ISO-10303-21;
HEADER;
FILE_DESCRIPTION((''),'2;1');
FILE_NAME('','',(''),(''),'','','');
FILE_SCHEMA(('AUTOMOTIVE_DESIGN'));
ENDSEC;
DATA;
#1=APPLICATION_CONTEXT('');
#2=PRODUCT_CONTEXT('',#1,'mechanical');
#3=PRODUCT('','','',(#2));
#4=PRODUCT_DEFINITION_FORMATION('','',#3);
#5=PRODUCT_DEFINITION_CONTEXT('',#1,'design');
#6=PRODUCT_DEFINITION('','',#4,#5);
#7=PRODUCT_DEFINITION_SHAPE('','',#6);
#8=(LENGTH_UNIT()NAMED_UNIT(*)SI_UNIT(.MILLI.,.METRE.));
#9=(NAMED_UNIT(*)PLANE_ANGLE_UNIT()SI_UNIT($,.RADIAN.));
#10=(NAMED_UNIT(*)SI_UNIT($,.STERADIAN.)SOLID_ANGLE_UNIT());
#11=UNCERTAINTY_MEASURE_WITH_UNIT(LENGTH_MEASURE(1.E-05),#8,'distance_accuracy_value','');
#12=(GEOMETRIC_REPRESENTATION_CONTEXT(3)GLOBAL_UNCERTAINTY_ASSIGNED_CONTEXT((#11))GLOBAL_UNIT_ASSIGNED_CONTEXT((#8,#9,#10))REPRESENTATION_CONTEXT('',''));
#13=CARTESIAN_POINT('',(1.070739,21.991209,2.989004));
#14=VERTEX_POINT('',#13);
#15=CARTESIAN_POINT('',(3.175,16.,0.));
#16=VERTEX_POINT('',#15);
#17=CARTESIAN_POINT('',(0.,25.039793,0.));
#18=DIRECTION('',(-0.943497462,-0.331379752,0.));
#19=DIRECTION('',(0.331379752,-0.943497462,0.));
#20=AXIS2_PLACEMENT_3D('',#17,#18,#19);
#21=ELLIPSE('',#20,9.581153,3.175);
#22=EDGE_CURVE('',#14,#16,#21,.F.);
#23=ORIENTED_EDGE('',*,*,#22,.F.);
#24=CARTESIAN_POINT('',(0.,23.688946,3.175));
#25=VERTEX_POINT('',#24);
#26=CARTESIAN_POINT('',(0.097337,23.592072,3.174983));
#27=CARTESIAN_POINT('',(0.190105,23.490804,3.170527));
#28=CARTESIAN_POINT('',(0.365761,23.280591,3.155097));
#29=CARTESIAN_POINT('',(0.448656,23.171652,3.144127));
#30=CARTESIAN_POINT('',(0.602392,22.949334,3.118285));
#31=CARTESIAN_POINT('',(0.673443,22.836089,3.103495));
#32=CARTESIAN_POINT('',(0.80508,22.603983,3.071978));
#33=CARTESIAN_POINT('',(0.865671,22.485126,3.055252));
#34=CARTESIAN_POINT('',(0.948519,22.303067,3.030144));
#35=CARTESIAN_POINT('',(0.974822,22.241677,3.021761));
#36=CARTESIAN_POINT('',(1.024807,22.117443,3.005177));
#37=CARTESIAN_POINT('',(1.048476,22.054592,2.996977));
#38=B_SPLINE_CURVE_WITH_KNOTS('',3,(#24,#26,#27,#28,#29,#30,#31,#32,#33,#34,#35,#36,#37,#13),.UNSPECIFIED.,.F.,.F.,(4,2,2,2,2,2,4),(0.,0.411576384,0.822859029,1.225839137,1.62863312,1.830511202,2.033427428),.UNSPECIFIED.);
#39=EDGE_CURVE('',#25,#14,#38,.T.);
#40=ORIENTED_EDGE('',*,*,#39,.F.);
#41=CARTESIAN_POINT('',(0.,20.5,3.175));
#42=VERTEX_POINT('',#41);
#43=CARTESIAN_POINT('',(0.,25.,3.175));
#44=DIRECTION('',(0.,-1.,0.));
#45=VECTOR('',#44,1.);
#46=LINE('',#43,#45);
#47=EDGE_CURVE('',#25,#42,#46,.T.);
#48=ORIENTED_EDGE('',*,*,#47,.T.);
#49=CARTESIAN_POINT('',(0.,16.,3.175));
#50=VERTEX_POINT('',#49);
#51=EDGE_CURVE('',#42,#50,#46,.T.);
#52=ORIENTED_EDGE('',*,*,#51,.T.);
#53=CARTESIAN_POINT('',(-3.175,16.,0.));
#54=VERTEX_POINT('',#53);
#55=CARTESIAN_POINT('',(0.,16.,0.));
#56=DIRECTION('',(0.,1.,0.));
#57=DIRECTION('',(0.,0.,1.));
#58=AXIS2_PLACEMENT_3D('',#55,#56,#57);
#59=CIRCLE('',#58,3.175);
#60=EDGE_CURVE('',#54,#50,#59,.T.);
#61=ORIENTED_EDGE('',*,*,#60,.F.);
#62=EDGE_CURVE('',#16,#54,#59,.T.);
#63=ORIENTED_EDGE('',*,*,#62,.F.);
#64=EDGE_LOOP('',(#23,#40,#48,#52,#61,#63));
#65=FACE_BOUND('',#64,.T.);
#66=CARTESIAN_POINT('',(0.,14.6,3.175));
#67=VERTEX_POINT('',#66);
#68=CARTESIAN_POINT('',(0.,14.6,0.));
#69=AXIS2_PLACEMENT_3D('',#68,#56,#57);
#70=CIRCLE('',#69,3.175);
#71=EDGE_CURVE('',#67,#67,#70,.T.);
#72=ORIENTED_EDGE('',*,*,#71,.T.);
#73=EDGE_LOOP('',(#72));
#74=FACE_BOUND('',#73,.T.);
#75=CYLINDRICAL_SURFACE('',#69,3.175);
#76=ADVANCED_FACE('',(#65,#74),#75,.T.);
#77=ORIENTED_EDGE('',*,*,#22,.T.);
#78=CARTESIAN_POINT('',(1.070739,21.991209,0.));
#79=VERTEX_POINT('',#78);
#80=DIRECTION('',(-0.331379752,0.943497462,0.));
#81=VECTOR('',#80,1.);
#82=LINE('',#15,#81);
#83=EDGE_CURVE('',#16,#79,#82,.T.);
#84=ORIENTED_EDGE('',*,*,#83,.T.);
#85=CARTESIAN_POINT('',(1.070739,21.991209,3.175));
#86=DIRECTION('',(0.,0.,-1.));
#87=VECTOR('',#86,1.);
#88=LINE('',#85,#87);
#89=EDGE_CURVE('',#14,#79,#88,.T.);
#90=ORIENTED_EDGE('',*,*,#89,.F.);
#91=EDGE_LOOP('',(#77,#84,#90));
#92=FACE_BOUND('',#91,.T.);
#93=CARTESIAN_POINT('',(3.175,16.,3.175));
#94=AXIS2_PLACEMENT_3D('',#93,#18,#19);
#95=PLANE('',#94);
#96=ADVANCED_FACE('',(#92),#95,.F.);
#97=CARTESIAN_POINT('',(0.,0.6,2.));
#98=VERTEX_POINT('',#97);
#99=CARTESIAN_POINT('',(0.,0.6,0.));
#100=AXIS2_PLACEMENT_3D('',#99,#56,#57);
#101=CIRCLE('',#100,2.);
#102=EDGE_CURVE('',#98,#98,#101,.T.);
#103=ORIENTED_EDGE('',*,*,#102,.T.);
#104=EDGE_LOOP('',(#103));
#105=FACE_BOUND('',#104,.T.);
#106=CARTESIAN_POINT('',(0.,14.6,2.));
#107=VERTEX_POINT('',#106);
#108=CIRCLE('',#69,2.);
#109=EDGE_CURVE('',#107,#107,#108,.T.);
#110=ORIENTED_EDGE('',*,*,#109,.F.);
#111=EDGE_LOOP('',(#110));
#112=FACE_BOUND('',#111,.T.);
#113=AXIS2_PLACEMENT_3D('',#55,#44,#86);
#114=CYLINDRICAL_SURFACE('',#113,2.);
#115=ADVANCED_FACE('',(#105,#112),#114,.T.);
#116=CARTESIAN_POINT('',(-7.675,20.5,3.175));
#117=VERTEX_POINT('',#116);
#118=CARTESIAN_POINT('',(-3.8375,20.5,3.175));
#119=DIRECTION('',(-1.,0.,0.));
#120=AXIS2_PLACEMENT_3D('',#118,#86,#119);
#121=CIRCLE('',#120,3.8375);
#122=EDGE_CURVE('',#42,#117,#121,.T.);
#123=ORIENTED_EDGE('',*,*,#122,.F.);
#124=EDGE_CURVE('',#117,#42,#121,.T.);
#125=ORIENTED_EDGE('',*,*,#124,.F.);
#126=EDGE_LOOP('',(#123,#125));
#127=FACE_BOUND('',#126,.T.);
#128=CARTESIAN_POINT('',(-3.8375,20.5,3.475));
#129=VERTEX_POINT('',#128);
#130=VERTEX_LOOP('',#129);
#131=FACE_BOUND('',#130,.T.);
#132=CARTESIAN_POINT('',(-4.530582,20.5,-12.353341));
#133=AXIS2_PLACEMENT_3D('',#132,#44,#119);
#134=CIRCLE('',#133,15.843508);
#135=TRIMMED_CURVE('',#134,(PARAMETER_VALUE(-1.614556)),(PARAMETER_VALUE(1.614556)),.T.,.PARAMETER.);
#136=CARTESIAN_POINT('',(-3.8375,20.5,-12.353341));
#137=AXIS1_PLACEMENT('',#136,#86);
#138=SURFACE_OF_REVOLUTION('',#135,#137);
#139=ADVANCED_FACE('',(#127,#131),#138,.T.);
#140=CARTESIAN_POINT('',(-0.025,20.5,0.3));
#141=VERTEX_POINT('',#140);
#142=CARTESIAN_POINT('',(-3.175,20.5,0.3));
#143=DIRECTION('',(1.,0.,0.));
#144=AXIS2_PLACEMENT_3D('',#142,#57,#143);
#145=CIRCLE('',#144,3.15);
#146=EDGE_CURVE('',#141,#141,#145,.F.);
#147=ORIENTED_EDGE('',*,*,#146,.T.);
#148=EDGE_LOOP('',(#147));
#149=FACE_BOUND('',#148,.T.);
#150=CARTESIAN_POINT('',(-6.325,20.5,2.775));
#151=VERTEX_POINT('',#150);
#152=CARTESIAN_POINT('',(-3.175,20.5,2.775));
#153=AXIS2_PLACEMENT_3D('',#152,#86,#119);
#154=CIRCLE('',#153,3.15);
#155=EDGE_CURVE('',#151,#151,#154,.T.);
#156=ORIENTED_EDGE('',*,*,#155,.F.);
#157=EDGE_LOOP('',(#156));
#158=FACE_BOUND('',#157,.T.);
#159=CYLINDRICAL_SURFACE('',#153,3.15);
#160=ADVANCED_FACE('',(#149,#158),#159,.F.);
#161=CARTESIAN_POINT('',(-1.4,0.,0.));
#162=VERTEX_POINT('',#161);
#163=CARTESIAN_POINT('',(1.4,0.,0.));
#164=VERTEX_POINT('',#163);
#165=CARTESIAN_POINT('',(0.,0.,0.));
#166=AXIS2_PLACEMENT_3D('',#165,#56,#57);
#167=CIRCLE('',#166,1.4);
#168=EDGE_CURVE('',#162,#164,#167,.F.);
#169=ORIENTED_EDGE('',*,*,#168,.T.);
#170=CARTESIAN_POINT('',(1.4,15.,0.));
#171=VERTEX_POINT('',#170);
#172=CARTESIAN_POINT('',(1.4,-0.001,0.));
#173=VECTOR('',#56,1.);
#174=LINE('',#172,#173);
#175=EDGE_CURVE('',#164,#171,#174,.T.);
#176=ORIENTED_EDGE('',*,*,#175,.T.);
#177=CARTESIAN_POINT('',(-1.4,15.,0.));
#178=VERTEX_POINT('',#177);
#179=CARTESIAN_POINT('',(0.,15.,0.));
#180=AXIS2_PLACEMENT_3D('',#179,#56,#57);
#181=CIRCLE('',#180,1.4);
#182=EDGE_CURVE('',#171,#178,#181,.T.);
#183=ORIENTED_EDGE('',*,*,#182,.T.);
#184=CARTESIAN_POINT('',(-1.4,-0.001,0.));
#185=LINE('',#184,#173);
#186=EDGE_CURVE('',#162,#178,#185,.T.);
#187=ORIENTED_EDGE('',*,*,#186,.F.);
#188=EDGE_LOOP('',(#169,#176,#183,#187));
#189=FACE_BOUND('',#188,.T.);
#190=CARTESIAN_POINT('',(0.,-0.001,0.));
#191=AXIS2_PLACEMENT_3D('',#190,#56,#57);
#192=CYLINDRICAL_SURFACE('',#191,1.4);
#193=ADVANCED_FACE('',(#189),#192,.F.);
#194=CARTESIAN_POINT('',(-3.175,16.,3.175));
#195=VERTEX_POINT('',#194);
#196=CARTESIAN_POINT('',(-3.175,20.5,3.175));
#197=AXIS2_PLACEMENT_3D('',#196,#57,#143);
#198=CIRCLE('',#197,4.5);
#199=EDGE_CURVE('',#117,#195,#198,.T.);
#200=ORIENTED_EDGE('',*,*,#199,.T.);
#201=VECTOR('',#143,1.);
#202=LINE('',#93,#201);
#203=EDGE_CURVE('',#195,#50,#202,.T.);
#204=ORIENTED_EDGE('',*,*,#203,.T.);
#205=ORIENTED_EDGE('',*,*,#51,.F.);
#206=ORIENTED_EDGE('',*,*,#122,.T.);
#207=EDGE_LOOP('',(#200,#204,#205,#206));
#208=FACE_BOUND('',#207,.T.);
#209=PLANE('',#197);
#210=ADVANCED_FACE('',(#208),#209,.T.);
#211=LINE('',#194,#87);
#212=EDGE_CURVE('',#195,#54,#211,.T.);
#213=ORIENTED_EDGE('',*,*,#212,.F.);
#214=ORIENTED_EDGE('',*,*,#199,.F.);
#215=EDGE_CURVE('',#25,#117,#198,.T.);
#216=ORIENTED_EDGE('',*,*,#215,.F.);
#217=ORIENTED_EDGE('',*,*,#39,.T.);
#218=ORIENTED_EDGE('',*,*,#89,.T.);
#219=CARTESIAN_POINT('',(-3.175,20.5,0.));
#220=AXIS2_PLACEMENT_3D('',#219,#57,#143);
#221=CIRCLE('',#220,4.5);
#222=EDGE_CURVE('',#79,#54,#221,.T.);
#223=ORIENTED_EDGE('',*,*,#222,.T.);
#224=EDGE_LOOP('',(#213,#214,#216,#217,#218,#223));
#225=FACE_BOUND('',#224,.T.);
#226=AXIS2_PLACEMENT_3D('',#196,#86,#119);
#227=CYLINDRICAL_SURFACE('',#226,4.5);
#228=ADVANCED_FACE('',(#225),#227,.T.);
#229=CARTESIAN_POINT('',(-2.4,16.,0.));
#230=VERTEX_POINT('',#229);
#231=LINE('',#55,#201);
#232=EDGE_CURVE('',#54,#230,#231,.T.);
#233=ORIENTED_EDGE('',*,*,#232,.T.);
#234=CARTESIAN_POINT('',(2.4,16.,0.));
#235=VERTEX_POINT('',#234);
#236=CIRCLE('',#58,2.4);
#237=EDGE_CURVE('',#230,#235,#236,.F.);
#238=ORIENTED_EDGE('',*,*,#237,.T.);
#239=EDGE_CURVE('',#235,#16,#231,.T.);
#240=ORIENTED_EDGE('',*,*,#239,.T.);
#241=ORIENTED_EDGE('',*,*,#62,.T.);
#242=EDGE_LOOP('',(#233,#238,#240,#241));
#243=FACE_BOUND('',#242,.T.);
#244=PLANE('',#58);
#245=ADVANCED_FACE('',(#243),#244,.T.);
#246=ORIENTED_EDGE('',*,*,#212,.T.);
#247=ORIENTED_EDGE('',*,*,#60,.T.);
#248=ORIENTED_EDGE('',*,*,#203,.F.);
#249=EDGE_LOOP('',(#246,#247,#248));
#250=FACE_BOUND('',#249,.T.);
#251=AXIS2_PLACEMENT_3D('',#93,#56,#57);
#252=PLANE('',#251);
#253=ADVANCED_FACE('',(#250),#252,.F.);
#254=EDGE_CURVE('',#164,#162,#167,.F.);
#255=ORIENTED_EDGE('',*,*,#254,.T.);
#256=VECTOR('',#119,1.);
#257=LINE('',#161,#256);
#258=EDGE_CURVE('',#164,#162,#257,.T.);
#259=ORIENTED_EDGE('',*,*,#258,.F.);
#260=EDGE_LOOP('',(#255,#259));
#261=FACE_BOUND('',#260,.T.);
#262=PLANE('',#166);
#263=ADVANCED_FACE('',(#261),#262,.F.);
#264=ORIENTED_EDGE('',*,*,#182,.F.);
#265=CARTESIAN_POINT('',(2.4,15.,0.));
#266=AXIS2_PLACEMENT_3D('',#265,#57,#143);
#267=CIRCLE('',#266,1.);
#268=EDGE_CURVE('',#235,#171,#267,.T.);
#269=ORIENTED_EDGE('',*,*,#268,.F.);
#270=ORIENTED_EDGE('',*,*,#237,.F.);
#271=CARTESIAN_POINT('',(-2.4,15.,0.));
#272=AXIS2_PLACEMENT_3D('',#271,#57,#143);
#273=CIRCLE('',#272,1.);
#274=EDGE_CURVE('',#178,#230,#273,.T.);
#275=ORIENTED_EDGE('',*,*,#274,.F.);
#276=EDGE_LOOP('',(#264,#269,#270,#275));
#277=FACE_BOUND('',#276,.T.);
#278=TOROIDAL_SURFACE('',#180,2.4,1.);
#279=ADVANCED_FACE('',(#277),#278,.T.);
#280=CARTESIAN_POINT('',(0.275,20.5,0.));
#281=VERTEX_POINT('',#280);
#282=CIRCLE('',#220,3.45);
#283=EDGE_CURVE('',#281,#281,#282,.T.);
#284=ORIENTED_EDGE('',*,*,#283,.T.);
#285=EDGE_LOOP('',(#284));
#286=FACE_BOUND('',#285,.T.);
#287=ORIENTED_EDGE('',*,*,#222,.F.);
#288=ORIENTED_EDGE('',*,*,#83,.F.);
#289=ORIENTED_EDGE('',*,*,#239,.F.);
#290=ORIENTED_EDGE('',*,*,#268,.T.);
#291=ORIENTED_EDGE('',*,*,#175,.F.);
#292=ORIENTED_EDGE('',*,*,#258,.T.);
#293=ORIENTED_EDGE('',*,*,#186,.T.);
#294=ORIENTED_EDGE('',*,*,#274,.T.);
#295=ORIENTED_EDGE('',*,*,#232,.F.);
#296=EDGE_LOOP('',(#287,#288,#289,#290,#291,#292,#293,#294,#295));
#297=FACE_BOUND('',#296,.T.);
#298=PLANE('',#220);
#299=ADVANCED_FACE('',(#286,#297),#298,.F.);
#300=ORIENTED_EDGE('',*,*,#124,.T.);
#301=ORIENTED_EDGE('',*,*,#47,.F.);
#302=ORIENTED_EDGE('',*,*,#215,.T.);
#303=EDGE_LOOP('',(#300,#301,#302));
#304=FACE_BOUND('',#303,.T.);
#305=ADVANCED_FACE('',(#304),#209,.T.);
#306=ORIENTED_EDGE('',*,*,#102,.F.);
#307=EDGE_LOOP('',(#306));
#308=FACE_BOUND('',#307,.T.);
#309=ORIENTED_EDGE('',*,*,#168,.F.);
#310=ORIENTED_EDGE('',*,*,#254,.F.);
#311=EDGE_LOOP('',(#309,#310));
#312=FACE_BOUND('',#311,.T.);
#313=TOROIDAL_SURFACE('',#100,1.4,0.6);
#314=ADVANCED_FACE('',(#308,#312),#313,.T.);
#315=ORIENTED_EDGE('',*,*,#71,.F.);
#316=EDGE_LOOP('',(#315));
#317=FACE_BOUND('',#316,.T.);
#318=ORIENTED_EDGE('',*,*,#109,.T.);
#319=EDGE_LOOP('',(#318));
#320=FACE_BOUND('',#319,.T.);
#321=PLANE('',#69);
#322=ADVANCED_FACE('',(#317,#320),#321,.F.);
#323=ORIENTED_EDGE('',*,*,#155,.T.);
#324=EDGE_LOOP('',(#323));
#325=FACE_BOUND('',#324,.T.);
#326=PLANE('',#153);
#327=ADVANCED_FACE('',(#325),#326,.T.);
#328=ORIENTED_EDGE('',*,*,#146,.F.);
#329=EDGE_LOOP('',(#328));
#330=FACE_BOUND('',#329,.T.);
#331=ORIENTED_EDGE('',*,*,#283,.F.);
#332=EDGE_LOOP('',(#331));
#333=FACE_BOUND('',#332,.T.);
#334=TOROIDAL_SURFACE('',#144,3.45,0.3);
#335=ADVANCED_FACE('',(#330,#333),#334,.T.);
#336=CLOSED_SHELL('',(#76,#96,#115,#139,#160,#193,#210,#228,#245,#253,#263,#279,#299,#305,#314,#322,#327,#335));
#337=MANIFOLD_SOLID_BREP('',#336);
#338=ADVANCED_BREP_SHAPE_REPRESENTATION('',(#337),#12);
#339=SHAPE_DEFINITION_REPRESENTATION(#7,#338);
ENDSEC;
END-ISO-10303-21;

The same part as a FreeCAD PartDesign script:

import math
import FreeCAD as App
import Part
import Sketcher
from FreeCAD import Vector
Q = App.Units.Quantity


def edges_at(feature, points):
    """Names of the edges that pass closest to the given points."""
    edges = feature.Shape.Edges
    near = lambda p: min(range(len(edges)), key=lambda i: edges[i].distToShape(Part.Vertex(*p))[0])
    return sorted({f"Edge{near(p) + 1}" for p in points})

doc = App.newDocument("Part")
body = doc.addObject("PartDesign::Body", "Body")

sketch1 = body.newObject("Sketcher::SketchObject", "Sketch")
sketch1.AttachmentSupport = (doc.getObject("XZ_Plane"), [""])
sketch1.MapMode = "FlatFace"
sketch1.addGeometry(Part.Circle(Vector(0, 0, 0), Vector(0, 0, 1), 2), False)
sketch1.addConstraint(Sketcher.Constraint("Coincident", 0, 3, -1, 1))
sketch1.addConstraint(Sketcher.Constraint("Diameter", 0, Q("4 mm")))
pad1 = body.newObject("PartDesign::Pad", "Pad")
pad1.Profile = sketch1
pad1.Length = 16
pad1.Reversed = True

sketch2 = body.newObject("Sketcher::SketchObject", "Sketch001")
sketch2.AttachmentSupport = (doc.getObject("XY_Plane"), [""])
sketch2.MapMode = "FlatFace"
sketch2.addGeometry(Part.LineSegment(Vector(3.2, 16, 0), Vector(1.1, 22, 0)), False)
sketch2.addGeometry(Part.ArcOfCircle(Part.Circle(Vector(-3.2, 20.5, 0), Vector(0, 0, 1), 4.5), math.radians(19), math.radians(270)), False)
sketch2.addGeometry(Part.LineSegment(Vector(-3.2, 16, 0), Vector(3.2, 16, 0)), False)
sketch2.addConstraint(Sketcher.Constraint("Tangent", 0, 2, 1, 1))
sketch2.addConstraint(Sketcher.Constraint("Tangent", 1, 2, 2, 1))
sketch2.addConstraint(Sketcher.Constraint("Coincident", 2, 2, 0, 1))
sketch2.addConstraint(Sketcher.Constraint("Horizontal", 2))
sketch2.addConstraint(Sketcher.Constraint("Radius", 1, Q("4.5 mm")))
sketch2.addConstraint(Sketcher.Constraint("DistanceY", -1, 1, 1, 2, Q("16 mm")))
sketch2.addConstraint(Sketcher.Constraint("DistanceX", 2, 1, 2, 2, Q("6.35 mm")))
sketch2.addConstraint(Sketcher.Constraint("DistanceX", 1, 3, -1, 1, Q("3.175 mm")))
pad2 = body.newObject("PartDesign::Pad", "Pad001")
pad2.Profile = sketch2
pad2.Length = 3.175

sketch3 = body.newObject("Sketcher::SketchObject", "Sketch002")
sketch3.AttachmentSupport = (doc.getObject("XY_Plane"), [""])
sketch3.MapMode = "FlatFace"
sketch3.addGeometry(Part.Circle(Vector(-3.2, 20.5, 0), Vector(0, 0, 1), 3.1), False)
sketch3.addConstraint(Sketcher.Constraint("Diameter", 0, Q("6.3 mm")))
sketch3.addConstraint(Sketcher.Constraint("DistanceY", -1, 1, 0, 3, Q("20.5 mm")))
sketch3.addConstraint(Sketcher.Constraint("DistanceX", 0, 3, -1, 1, Q("3.175 mm")))
pocket1 = body.newObject("PartDesign::Pocket", "Pocket")
pocket1.Profile = sketch3
pocket1.Length = 2.775
pocket1.Reversed = True
doc.recompute()

fillet = body.newObject("PartDesign::Fillet", "Fillet")
fillet.Base = (pocket1, edges_at(pocket1, [(-2, 0, 0)]))
fillet.Radius = 0.6

sketch4 = body.newObject("Sketcher::SketchObject", "Sketch003")
sketch4.AttachmentSupport = (doc.getObject("XZ_Plane"), [""])
sketch4.MapMode = "FlatFace"
sketch4.AttachmentOffset = App.Placement(Vector(0, 0, -16), App.Rotation())
sketch4.addGeometry(Part.Circle(Vector(0, 0, 0), Vector(0, 0, 1), 3.2), False)
sketch4.addConstraint(Sketcher.Constraint("Coincident", 0, 3, -1, 1))
sketch4.addConstraint(Sketcher.Constraint("Diameter", 0, Q("6.35 mm")))
pad3 = body.newObject("PartDesign::Pad", "Pad002")
pad3.Profile = sketch4
pad3.Length = 1.4

sketch5 = body.newObject("Sketcher::SketchObject", "Sketch004")
sketch5.AttachmentSupport = (doc.getObject("XZ_Plane"), [""])
sketch5.MapMode = "FlatFace"
sketch5.AttachmentOffset = App.Placement(Vector(0, 0, -16), App.Rotation())
sketch5.addGeometry(Part.LineSegment(Vector(3.51, 0.28, 0), Vector(3.17, 3.17, 0)), False)
sketch5.addGeometry(Part.LineSegment(Vector(3.17, 3.17, 0), Vector(0, 3.17, 0)), False)
sketch5.addGeometry(Part.ArcOfCircle(Part.Circle(Vector(0, 0, 0), Vector(0, 0, 1), 3.18), math.radians(0), math.radians(90)), False)
sketch5.addGeometry(Part.LineSegment(Vector(3.17, 0, 0), Vector(3.51, 0.28, 0)), False)
sketch5.addConstraint(Sketcher.Constraint("Coincident", 0, 2, 1, 1))
sketch5.addConstraint(Sketcher.Constraint("Tangent", 1, 2, 2, 2))
sketch5.addConstraint(Sketcher.Constraint("Coincident", 2, 1, 3, 1))
sketch5.addConstraint(Sketcher.Constraint("Coincident", 3, 2, 0, 1))
sketch5.addConstraint(Sketcher.Constraint("Horizontal", 1))
sketch5.addConstraint(Sketcher.Constraint("Coincident", 2, 3, -1, 1))
sketch5.addConstraint(Sketcher.Constraint("PointOnObject", 2, 1, -1))
sketch5.addConstraint(Sketcher.Constraint("Vertical", 0, 2, 2, 1))
sketch5.addConstraint(Sketcher.Constraint("Radius", 2, Q("3.175 mm")))
sketch5.addConstraint(Sketcher.Constraint("DistanceY", 3, 2, 0, 2, Q("2.9 mm")))
sketch5.addConstraint(Sketcher.Constraint("Distance", 0, Q("2.918833 mm")))
pocket2 = body.newObject("PartDesign::Pocket", "Pocket001")
pocket2.Profile = sketch5
pocket2.Type = "ThroughAll"

sketch6 = body.newObject("Sketcher::SketchObject", "Sketch005")
sketch6.AttachmentSupport = (doc.getObject("XZ_Plane"), [""])
sketch6.MapMode = "FlatFace"
sketch6.AttachmentOffset = App.Placement(Vector(0, 0, -20.5), App.Rotation())
sketch6.addGeometry(Part.LineSegment(Vector(-3.84, 3.17, 0), Vector(-3.84, 3.48, 0)), False)
sketch6.addGeometry(Part.ArcOfCircle(Part.Circle(Vector(-4.53, -12.35, 0), Vector(0, 0, 1), 15.84), math.radians(87.49), math.radians(101.45)), False)
sketch6.addGeometry(Part.LineSegment(Vector(-7.67, 3.17, 0), Vector(-3.84, 3.17, 0)), False)
sketch6.addGeometry(Part.LineSegment(Vector(-3.84, -12.35, 0), Vector(-3.84, 3.48, 0)), True)
sketch6.addConstraint(Sketcher.Constraint("Coincident", 0, 2, 1, 1))
sketch6.addConstraint(Sketcher.Constraint("Coincident", 1, 2, 2, 1))
sketch6.addConstraint(Sketcher.Constraint("Coincident", 2, 2, 0, 1))
sketch6.addConstraint(Sketcher.Constraint("Vertical", 0))
sketch6.addConstraint(Sketcher.Constraint("Horizontal", 2))
sketch6.addConstraint(Sketcher.Constraint("Vertical", 3))
sketch6.addConstraint(Sketcher.Constraint("Coincident", 3, 2, 0, 2))
sketch6.addConstraint(Sketcher.Constraint("Horizontal", 1, 3, 3, 1))
sketch6.addConstraint(Sketcher.Constraint("DistanceY", 0, 1, 0, 2, Q("0.3 mm")))
sketch6.addConstraint(Sketcher.Constraint("Radius", 1, Q("15.843508 mm")))
sketch6.addConstraint(Sketcher.Constraint("DistanceX", 2, 1, 2, 2, Q("3.8375 mm")))
sketch6.addConstraint(Sketcher.Constraint("DistanceY", -1, 1, 0, 2, Q("3.475 mm")))
sketch6.addConstraint(Sketcher.Constraint("DistanceX", 1, 2, -1, 1, Q("7.675 mm")))
revolution = body.newObject("PartDesign::Revolution", "Revolution")
revolution.Profile = sketch6
revolution.ReferenceAxis = (sketch6, ["Axis0"])
revolution.Angle = 360
doc.recompute()

fillet2 = body.newObject("PartDesign::Fillet", "Fillet001")
fillet2.Base = (revolution, edges_at(revolution, [(-0.025, 20.5, 0)]))
fillet2.Radius = 0.3

sketch7 = body.newObject("Sketcher::SketchObject", "Sketch006")
sketch7.AttachmentSupport = (doc.getObject("XZ_Plane"), [""])
sketch7.MapMode = "FlatFace"
sketch7.AttachmentOffset = App.Placement(Vector(0, 0, -16), App.Rotation())
sketch7.addGeometry(Part.LineSegment(Vector(-1.4, 0, 0), Vector(1.4, 0, 0)), False)
sketch7.addGeometry(Part.ArcOfCircle(Part.Circle(Vector(0, 0, 0), Vector(0, 0, 1), 1.4), math.radians(180), math.radians(360)), False)
sketch7.addConstraint(Sketcher.Constraint("Coincident", 0, 1, 1, 1))
sketch7.addConstraint(Sketcher.Constraint("Coincident", 1, 2, 0, 2))
sketch7.addConstraint(Sketcher.Constraint("Horizontal", 0))
sketch7.addConstraint(Sketcher.Constraint("Coincident", 1, 3, -1, 1))
sketch7.addConstraint(Sketcher.Constraint("PointOnObject", 0, 1, -1))
sketch7.addConstraint(Sketcher.Constraint("Radius", 1, Q("1.4 mm")))
pocket3 = body.newObject("PartDesign::Pocket", "Pocket002")
pocket3.Profile = sketch7
pocket3.Type = "UpToFirst"
pocket3.Reversed = True
doc.recompute()

fillet3 = body.newObject("PartDesign::Fillet", "Fillet002")
fillet3.Base = (pocket3, edges_at(pocket3, [(0, 16, -1.4)]))
fillet3.Radius = 1

doc.recompute()
